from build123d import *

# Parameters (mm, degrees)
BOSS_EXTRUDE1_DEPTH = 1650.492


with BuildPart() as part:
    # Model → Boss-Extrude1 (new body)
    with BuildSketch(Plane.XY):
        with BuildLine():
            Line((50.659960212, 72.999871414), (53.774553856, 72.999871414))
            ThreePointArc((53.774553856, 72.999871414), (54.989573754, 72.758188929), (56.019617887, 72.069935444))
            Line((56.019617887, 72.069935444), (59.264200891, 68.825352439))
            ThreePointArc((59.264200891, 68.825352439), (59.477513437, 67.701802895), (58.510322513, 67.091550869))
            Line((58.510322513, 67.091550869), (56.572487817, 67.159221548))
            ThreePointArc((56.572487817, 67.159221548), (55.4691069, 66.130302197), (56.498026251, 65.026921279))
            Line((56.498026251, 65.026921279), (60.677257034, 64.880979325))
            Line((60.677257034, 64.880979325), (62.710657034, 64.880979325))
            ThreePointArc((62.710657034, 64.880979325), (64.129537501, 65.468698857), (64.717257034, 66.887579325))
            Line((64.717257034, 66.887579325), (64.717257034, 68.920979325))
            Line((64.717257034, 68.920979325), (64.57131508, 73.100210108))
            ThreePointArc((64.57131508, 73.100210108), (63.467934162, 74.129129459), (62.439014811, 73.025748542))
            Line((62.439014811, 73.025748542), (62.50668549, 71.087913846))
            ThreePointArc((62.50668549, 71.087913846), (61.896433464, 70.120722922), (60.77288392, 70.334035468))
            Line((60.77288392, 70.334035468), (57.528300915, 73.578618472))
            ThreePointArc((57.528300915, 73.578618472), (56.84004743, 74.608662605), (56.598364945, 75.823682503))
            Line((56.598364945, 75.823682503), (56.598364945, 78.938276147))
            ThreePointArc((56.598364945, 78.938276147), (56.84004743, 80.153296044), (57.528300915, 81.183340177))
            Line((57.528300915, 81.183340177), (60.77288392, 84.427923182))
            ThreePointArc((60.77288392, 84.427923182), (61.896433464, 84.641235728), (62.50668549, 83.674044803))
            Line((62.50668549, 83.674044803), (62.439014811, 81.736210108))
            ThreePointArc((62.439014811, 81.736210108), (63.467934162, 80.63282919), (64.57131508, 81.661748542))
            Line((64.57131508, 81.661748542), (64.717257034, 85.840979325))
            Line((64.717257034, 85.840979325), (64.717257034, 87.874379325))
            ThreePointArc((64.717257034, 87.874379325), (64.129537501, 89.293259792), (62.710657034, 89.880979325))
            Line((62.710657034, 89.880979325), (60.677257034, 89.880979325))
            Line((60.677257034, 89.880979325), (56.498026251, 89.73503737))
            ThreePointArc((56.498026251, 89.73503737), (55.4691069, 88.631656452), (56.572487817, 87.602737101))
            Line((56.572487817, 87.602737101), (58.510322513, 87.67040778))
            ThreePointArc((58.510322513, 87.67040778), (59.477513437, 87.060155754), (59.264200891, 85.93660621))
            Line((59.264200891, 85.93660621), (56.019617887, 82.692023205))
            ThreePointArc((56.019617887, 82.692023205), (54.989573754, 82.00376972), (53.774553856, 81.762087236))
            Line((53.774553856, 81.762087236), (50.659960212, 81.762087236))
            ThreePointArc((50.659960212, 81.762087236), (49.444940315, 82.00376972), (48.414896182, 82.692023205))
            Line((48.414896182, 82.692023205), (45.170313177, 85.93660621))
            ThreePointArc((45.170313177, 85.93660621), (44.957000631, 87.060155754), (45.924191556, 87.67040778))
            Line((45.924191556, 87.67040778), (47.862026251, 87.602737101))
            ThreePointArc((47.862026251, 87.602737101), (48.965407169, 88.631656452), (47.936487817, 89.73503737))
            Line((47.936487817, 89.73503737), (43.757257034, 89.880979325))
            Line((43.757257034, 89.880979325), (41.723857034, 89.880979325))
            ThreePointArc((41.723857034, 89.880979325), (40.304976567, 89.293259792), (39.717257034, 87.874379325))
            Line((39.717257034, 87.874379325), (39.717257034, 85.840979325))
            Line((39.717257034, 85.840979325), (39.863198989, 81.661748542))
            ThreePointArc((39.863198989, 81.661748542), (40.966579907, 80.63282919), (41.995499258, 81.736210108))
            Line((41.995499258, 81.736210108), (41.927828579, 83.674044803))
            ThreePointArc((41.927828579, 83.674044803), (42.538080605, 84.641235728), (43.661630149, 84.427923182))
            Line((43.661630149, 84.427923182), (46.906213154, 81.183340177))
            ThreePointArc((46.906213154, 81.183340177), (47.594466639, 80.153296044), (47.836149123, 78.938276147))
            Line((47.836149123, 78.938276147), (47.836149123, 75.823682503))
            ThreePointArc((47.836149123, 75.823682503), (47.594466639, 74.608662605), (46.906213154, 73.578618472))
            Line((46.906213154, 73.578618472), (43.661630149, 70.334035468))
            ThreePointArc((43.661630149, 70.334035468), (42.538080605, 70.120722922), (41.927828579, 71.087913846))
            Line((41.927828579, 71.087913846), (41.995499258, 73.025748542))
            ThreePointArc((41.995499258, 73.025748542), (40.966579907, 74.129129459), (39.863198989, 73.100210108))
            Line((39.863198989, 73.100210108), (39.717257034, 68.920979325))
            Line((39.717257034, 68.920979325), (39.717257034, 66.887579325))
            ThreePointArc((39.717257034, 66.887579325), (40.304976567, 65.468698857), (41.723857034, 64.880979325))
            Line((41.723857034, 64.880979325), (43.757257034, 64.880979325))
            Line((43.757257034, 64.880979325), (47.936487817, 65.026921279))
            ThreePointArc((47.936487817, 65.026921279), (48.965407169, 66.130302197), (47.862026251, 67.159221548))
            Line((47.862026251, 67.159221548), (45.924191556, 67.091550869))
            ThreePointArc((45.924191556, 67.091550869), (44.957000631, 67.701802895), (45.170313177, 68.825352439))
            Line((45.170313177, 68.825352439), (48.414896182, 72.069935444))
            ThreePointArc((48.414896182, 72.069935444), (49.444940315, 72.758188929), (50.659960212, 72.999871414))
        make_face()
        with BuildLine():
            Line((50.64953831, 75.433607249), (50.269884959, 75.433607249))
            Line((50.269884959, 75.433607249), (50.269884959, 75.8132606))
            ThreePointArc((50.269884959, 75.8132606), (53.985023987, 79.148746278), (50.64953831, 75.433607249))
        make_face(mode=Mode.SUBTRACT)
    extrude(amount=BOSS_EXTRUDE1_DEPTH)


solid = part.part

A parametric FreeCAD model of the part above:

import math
import FreeCAD as App
import Part
import Sketcher
from FreeCAD import Vector
Q = App.Units.Quantity

doc = App.newDocument("Part")
body = doc.addObject("PartDesign::Body", "Body")

# Sketch on XY plane
sketch1 = doc.addObject("Sketcher::SketchObject", "Sketch")
body.addObject(sketch1)
sketch1.AttachmentSupport = (doc.XY_Plane, [""])
sketch1.MapMode = "FlatFace"
sketch1.addGeometry([
    Part.LineSegment(Vector(50.66, 73, 0), Vector(53.77, 73, 0)),  # 0
    Part.ArcOfCircle(Part.Circle(Vector(53.77, 69.82, 0), Vector(0, 0, 1), 3.18), math.radians(45), math.radians(90)),  # 1
    Part.LineSegment(Vector(56.02, 72.07, 0), Vector(59.26, 68.83, 0)),  # 2
    Part.ArcOfCircle(Part.Circle(Vector(58.55, 68.11, 0), Vector(0, 0, 1), 1.02), math.radians(-92), math.radians(45)),  # 3
    Part.LineSegment(Vector(58.51, 67.09, 0), Vector(56.57, 67.16, 0)),  # 4
    Part.ArcOfCircle(Part.Circle(Vector(56.54, 66.09, 0), Vector(0, 0, 1), 1.07), math.radians(88), math.radians(268)),  # 5
    Part.LineSegment(Vector(56.5, 65.03, 0), Vector(60.68, 64.88, 0)),  # 6
    Part.LineSegment(Vector(60.68, 64.88, 0), Vector(62.71, 64.88, 0)),  # 7
    Part.ArcOfCircle(Part.Circle(Vector(62.71, 66.89, 0), Vector(0, 0, 1), 2.01), math.radians(-90), math.radians(0)),  # 8
    Part.LineSegment(Vector(64.72, 66.89, 0), Vector(64.72, 68.92, 0)),  # 9
    Part.LineSegment(Vector(64.72, 68.92, 0), Vector(64.57, 73.1, 0)),  # 10
    Part.ArcOfCircle(Part.Circle(Vector(63.51, 73.06, 0), Vector(0, 0, 1), 1.07), math.radians(2), math.radians(182)),  # 11
    Part.LineSegment(Vector(62.44, 73.03, 0), Vector(62.51, 71.09, 0)),  # 12
    Part.ArcOfCircle(Part.Circle(Vector(61.49, 71.05, 0), Vector(0, 0, 1), 1.02), math.radians(-135), math.radians(2)),  # 13
    Part.LineSegment(Vector(60.77, 70.33, 0), Vector(57.53, 73.58, 0)),  # 14
    Part.ArcOfCircle(Part.Circle(Vector(59.77, 75.82, 0), Vector(0, 0, 1), 3.18), math.radians(-180), math.radians(-135)),  # 15
    Part.LineSegment(Vector(56.6, 75.82, 0), Vector(56.6, 78.94, 0)),  # 16
    Part.ArcOfCircle(Part.Circle(Vector(59.77, 78.94, 0), Vector(0, 0, 1), 3.18), math.radians(135), math.radians(180)),  # 17
    Part.LineSegment(Vector(57.53, 81.18, 0), Vector(60.77, 84.43, 0)),  # 18
    Part.ArcOfCircle(Part.Circle(Vector(61.49, 83.71, 0), Vector(0, 0, 1), 1.02), math.radians(-2), math.radians(135)),  # 19
    Part.LineSegment(Vector(62.51, 83.67, 0), Vector(62.44, 81.74, 0)),  # 20
    Part.ArcOfCircle(Part.Circle(Vector(63.51, 81.7, 0), Vector(0, 0, 1), 1.07), math.radians(178), math.radians(358)),  # 21
    Part.LineSegment(Vector(64.57, 81.66, 0), Vector(64.72, 85.84, 0)),  # 22
    Part.LineSegment(Vector(64.72, 85.84, 0), Vector(64.72, 87.87, 0)),  # 23
    Part.ArcOfCircle(Part.Circle(Vector(62.71, 87.87, 0), Vector(0, 0, 1), 2.01), math.radians(0), math.radians(90)),  # 24
    Part.LineSegment(Vector(62.71, 89.88, 0), Vector(60.68, 89.88, 0)),  # 25
    Part.LineSegment(Vector(60.68, 89.88, 0), Vector(56.5, 89.74, 0)),  # 26
    Part.ArcOfCircle(Part.Circle(Vector(56.54, 88.67, 0), Vector(0, 0, 1), 1.07), math.radians(92), math.radians(272)),  # 27
    Part.LineSegment(Vector(56.57, 87.6, 0), Vector(58.51, 87.67, 0)),  # 28
    Part.ArcOfCircle(Part.Circle(Vector(58.55, 86.66, 0), Vector(0, 0, 1), 1.02), math.radians(-45), math.radians(92)),  # 29
    Part.LineSegment(Vector(59.26, 85.94, 0), Vector(56.02, 82.69, 0)),  # 30
    Part.ArcOfCircle(Part.Circle(Vector(53.77, 84.94, 0), Vector(0, 0, 1), 3.18), math.radians(-90), math.radians(-45)),  # 31
    Part.LineSegment(Vector(53.77, 81.76, 0), Vector(50.66, 81.76, 0)),  # 32
    Part.ArcOfCircle(Part.Circle(Vector(50.66, 84.94, 0), Vector(0, 0, 1), 3.18), math.radians(-135), math.radians(-90)),  # 33
    Part.LineSegment(Vector(48.41, 82.69, 0), Vector(45.17, 85.94, 0)),  # 34
    Part.ArcOfCircle(Part.Circle(Vector(45.89, 86.66, 0), Vector(0, 0, 1), 1.02), math.radians(88), math.radians(225)),  # 35
    Part.LineSegment(Vector(45.92, 87.67, 0), Vector(47.86, 87.6, 0)),  # 36
    Part.ArcOfCircle(Part.Circle(Vector(47.9, 88.67, 0), Vector(0, 0, 1), 1.07), math.radians(-92), math.radians(88)),  # 37
    Part.LineSegment(Vector(47.94, 89.74, 0), Vector(43.76, 89.88, 0)),  # 38
    Part.LineSegment(Vector(43.76, 89.88, 0), Vector(41.72, 89.88, 0)),  # 39
    Part.ArcOfCircle(Part.Circle(Vector(41.72, 87.87, 0), Vector(0, 0, 1), 2.01), math.radians(90), math.radians(180)),  # 40
    Part.LineSegment(Vector(39.72, 87.87, 0), Vector(39.72, 85.84, 0)),  # 41
    Part.LineSegment(Vector(39.72, 85.84, 0), Vector(39.86, 81.66, 0)),  # 42
    Part.ArcOfCircle(Part.Circle(Vector(40.93, 81.7, 0), Vector(0, 0, 1), 1.07), math.radians(-178), math.radians(2)),  # 43
    Part.LineSegment(Vector(42, 81.74, 0), Vector(41.93, 83.67, 0)),  # 44
    Part.ArcOfCircle(Part.Circle(Vector(42.94, 83.71, 0), Vector(0, 0, 1), 1.02), math.radians(45), math.radians(182)),  # 45
    Part.LineSegment(Vector(43.66, 84.43, 0), Vector(46.91, 81.18, 0)),  # 46
    Part.ArcOfCircle(Part.Circle(Vector(44.66, 78.94, 0), Vector(0, 0, 1), 3.18), math.radians(0), math.radians(45)),  # 47
    Part.LineSegment(Vector(47.84, 78.94, 0), Vector(47.84, 75.82, 0)),  # 48
    Part.ArcOfCircle(Part.Circle(Vector(44.66, 75.82, 0), Vector(0, 0, 1), 3.18), math.radians(-45), math.radians(0)),  # 49
    Part.LineSegment(Vector(46.91, 73.58, 0), Vector(43.66, 70.33, 0)),  # 50
    Part.ArcOfCircle(Part.Circle(Vector(42.94, 71.05, 0), Vector(0, 0, 1), 1.02), math.radians(178), math.radians(315)),  # 51
    Part.LineSegment(Vector(41.93, 71.09, 0), Vector(42, 73.03, 0)),  # 52
    Part.ArcOfCircle(Part.Circle(Vector(40.93, 73.06, 0), Vector(0, 0, 1), 1.07), math.radians(-2), math.radians(178)),  # 53
    Part.LineSegment(Vector(39.86, 73.1, 0), Vector(39.72, 68.92, 0)),  # 54
    Part.LineSegment(Vector(39.72, 68.92, 0), Vector(39.72, 66.89, 0)),  # 55
    Part.ArcOfCircle(Part.Circle(Vector(41.72, 66.89, 0), Vector(0, 0, 1), 2.01), math.radians(180), math.radians(270)),  # 56
    Part.LineSegment(Vector(41.72, 64.88, 0), Vector(43.76, 64.88, 0)),  # 57
    Part.LineSegment(Vector(43.76, 64.88, 0), Vector(47.94, 65.03, 0)),  # 58
    Part.ArcOfCircle(Part.Circle(Vector(47.9, 66.09, 0), Vector(0, 0, 1), 1.07), math.radians(-88), math.radians(92)),  # 59
    Part.LineSegment(Vector(47.86, 67.16, 0), Vector(45.92, 67.09, 0)),  # 60
    Part.ArcOfCircle(Part.Circle(Vector(45.89, 68.11, 0), Vector(0, 0, 1), 1.02), math.radians(135), math.radians(272)),  # 61
    Part.LineSegment(Vector(45.17, 68.83, 0), Vector(48.41, 72.07, 0)),  # 62
    Part.ArcOfCircle(Part.Circle(Vector(50.66, 69.82, 0), Vector(0, 0, 1), 3.18), math.radians(90), math.radians(135)),  # 63
    Part.ArcOfCircle(Part.Circle(Vector(52.22, 77.38, 0), Vector(0, 0, 1), 2.5), math.radians(-129), math.radians(219)),  # 64
    Part.LineSegment(Vector(50.65, 75.43, 0), Vector(50.27, 75.43, 0)),  # 65
    Part.LineSegment(Vector(50.27, 75.43, 0), Vector(50.27, 75.81, 0)),  # 66
], False)
sketch1.addConstraint([
    Sketcher.Constraint("Tangent", 0, 2, 1, 2),
    Sketcher.Constraint("Tangent", 1, 1, 2, 1),
    Sketcher.Constraint("Tangent", 2, 2, 3, 2),
    Sketcher.Constraint("Tangent", 3, 1, 4, 1),
    Sketcher.Constraint("Tangent", 4, 2, 5, 1),
    Sketcher.Constraint("Tangent", 5, 2, 6, 1),
    Sketcher.Constraint("Coincident", 6, 2, 7, 1),
    Sketcher.Constraint("Tangent", 7, 2, 8, 1),
    Sketcher.Constraint("Tangent", 8, 2, 9, 1),
    Sketcher.Constraint("Coincident", 9, 2, 10, 1),
    Sketcher.Constraint("Tangent", 10, 2, 11, 1),
    Sketcher.Constraint("Tangent", 11, 2, 12, 1),
    Sketcher.Constraint("Tangent", 12, 2, 13, 2),
    Sketcher.Constraint("Tangent", 13, 1, 14, 1),
    Sketcher.Constraint("Tangent", 14, 2, 15, 2),
    Sketcher.Constraint("Tangent", 15, 1, 16, 1),
    Sketcher.Constraint("Tangent", 16, 2, 17, 2),
    Sketcher.Constraint("Tangent", 17, 1, 18, 1),
    Sketcher.Constraint("Tangent", 18, 2, 19, 2),
    Sketcher.Constraint("Tangent", 19, 1, 20, 1),
    Sketcher.Constraint("Tangent", 20, 2, 21, 1),
    Sketcher.Constraint("Tangent", 21, 2, 22, 1),
    Sketcher.Constraint("Coincident", 22, 2, 23, 1),
    Sketcher.Constraint("Tangent", 23, 2, 24, 1),
    Sketcher.Constraint("Tangent", 24, 2, 25, 1),
    Sketcher.Constraint("Coincident", 25, 2, 26, 1),
    Sketcher.Constraint("Tangent", 26, 2, 27, 1),
    Sketcher.Constraint("Tangent", 27, 2, 28, 1),
    Sketcher.Constraint("Tangent", 28, 2, 29, 2),
    Sketcher.Constraint("Tangent", 29, 1, 30, 1),
    Sketcher.Constraint("Tangent", 30, 2, 31, 2),
    Sketcher.Constraint("Tangent", 31, 1, 32, 1),
    Sketcher.Constraint("Tangent", 32, 2, 33, 2),
    Sketcher.Constraint("Tangent", 33, 1, 34, 1),
    Sketcher.Constraint("Tangent", 34, 2, 35, 2),
    Sketcher.Constraint("Tangent", 35, 1, 36, 1),
    Sketcher.Constraint("Tangent", 36, 2, 37, 1),
    Sketcher.Constraint("Tangent", 37, 2, 38, 1),
    Sketcher.Constraint("Coincident", 38, 2, 39, 1),
    Sketcher.Constraint("Tangent", 39, 2, 40, 1),
    Sketcher.Constraint("Tangent", 40, 2, 41, 1),
    Sketcher.Constraint("Coincident", 41, 2, 42, 1),
    Sketcher.Constraint("Tangent", 42, 2, 43, 1),
    Sketcher.Constraint("Tangent", 43, 2, 44, 1),
    Sketcher.Constraint("Tangent", 44, 2, 45, 2),
    Sketcher.Constraint("Tangent", 45, 1, 46, 1),
    Sketcher.Constraint("Tangent", 46, 2, 47, 2),
    Sketcher.Constraint("Tangent", 47, 1, 48, 1),
    Sketcher.Constraint("Tangent", 48, 2, 49, 2),
    Sketcher.Constraint("Tangent", 49, 1, 50, 1),
    Sketcher.Constraint("Tangent", 50, 2, 51, 2),
    Sketcher.Constraint("Tangent", 51, 1, 52, 1),
    Sketcher.Constraint("Tangent", 52, 2, 53, 1),
    Sketcher.Constraint("Tangent", 53, 2, 54, 1),
    Sketcher.Constraint("Coincident", 54, 2, 55, 1),
    Sketcher.Constraint("Tangent", 55, 2, 56, 1),
    Sketcher.Constraint("Tangent", 56, 2, 57, 1),
    Sketcher.Constraint("Coincident", 57, 2, 58, 1),
    Sketcher.Constraint("Tangent", 58, 2, 59, 1),
    Sketcher.Constraint("Tangent", 59, 2, 60, 1),
    Sketcher.Constraint("Tangent", 60, 2, 61, 2),
    Sketcher.Constraint("Tangent", 61, 1, 62, 1),
    Sketcher.Constraint("Tangent", 62, 2, 63, 2),
    Sketcher.Constraint("Tangent", 63, 1, 0, 1),
    Sketcher.Constraint("Coincident", 64, 1, 65, 1),
    Sketcher.Constraint("Coincident", 65, 2, 66, 1),
    Sketcher.Constraint("Coincident", 66, 2, 64, 2),
    Sketcher.Constraint("Horizontal", 0),
    Sketcher.Constraint("Horizontal", 7),
    Sketcher.Constraint("Vertical", 9),
    Sketcher.Constraint("Vertical", 16),
    Sketcher.Constraint("Vertical", 23),
    Sketcher.Constraint("Horizontal", 25),
    Sketcher.Constraint("Horizontal", 32),
    Sketcher.Constraint("Horizontal", 39),
    Sketcher.Constraint("Vertical", 41),
    Sketcher.Constraint("Vertical", 48),
    Sketcher.Constraint("Vertical", 55),
    Sketcher.Constraint("Horizontal", 57),
    Sketcher.Constraint("Horizontal", 65),
    Sketcher.Constraint("Vertical", 66),
    Sketcher.Constraint("Equal", 5, 11),
    Sketcher.Constraint("Equal", 3, 13),
    Sketcher.Constraint("Equal", 1, 15),
    Sketcher.Constraint("Equal", 15, 17),
    Sketcher.Constraint("Equal", 13, 19),
    Sketcher.Constraint("Equal", 11, 21),
    Sketcher.Constraint("Equal", 8, 24),
    Sketcher.Constraint("Equal", 21, 27),
    Sketcher.Constraint("Equal", 19, 29),
    Sketcher.Constraint("Equal", 17, 31),
    Sketcher.Constraint("Equal", 31, 33),
    Sketcher.Constraint("Equal", 29, 35),
    Sketcher.Constraint("Equal", 27, 37),
    Sketcher.Constraint("Equal", 24, 40),
    Sketcher.Constraint("Equal", 37, 43),
    Sketcher.Constraint("Equal", 35, 45),
    Sketcher.Constraint("Equal", 33, 47),
    Sketcher.Constraint("Equal", 47, 49),
    Sketcher.Constraint("Equal", 45, 51),
    Sketcher.Constraint("Equal", 43, 53),
    Sketcher.Constraint("Equal", 40, 56),
    Sketcher.Constraint("Equal", 53, 59),
    Sketcher.Constraint("Equal", 51, 61),
    Sketcher.Constraint("Equal", 49, 63),
    Sketcher.Constraint("Parallel", 4, 6),
    Sketcher.Constraint("Parallel", 10, 12),
    Sketcher.Constraint("Parallel", 2, 14),
    Sketcher.Constraint("Perpendicular", 14, 18),
    Sketcher.Constraint("Perpendicular", 6, 20),
    Sketcher.Constraint("Parallel", 20, 22),
    Sketcher.Constraint("Perpendicular", 12, 26),
    Sketcher.Constraint("Parallel", 26, 28),
    Sketcher.Constraint("Parallel", 18, 30),
    Sketcher.Constraint("Perpendicular", 30, 34),
    Sketcher.Constraint("Perpendicular", 22, 36),
    Sketcher.Constraint("Parallel", 36, 38),
    Sketcher.Constraint("Perpendicular", 28, 42),
    Sketcher.Constraint("Parallel", 42, 44),
    Sketcher.Constraint("Parallel", 34, 46),
    Sketcher.Constraint("Perpendicular", 46, 50),
    Sketcher.Constraint("Perpendicular", 38, 52),
    Sketcher.Constraint("Parallel", 52, 54),
    Sketcher.Constraint("Perpendicular", 44, 58),
    Sketcher.Constraint("Parallel", 58, 60),
    Sketcher.Constraint("Parallel", 50, 62),
    Sketcher.Constraint("Horizontal", 29, 3, 35, 3),
    Sketcher.Constraint("Horizontal", 27, 3, 37, 3),
    Sketcher.Constraint("Horizontal", 24, 3, 40, 3),
    Sketcher.Constraint("Horizontal", 21, 3, 43, 3),
    Sketcher.Constraint("Horizontal", 19, 3, 45, 3),
    Sketcher.Constraint("Horizontal", 17, 3, 47, 3),
    Sketcher.Constraint("Horizontal", 15, 3, 49, 3),
    Sketcher.Constraint("Horizontal", 13, 3, 51, 3),
    Sketcher.Constraint("Horizontal", 11, 3, 53, 3),
    Sketcher.Constraint("Horizontal", 8, 3, 56, 3),
    Sketcher.Constraint("Horizontal", 5, 3, 59, 3),
    Sketcher.Constraint("Horizontal", 3, 3, 61, 3),
    Sketcher.Constraint("Horizontal", 30, 2, 33, 1),
    Sketcher.Constraint("Horizontal", 22, 2, 41, 2),
    Sketcher.Constraint("Horizontal", 21, 2, 42, 2),
    Sketcher.Constraint("Horizontal", 9, 2, 54, 2),
    Sketcher.Constraint("Vertical", 13, 3, 19, 3),
    Sketcher.Constraint("Vertical", 11, 3, 21, 3),
    Sketcher.Constraint("Vertical", 8, 3, 24, 3),
    Sketcher.Constraint("Vertical", 5, 3, 27, 3),
    Sketcher.Constraint("Vertical", 3, 3, 29, 3),
    Sketcher.Constraint("Vertical", 1, 3, 31, 3),
    Sketcher.Constraint("Vertical", 37, 3, 59, 3),
    Sketcher.Constraint("Vertical", 6, 2, 25, 2),
    Sketcher.Constraint("Equal", 25, 39),
    Sketcher.Constraint("Equal", 57, 9),
    Sketcher.Constraint("Equal", 32, 16),
    Sketcher.Constraint("Equal", 9, 23),
    Sketcher.Constraint("Equal", 65, 66),
    Sketcher.Constraint("Equal", 6, 10),
    Sketcher.Constraint("Equal", 4, 12),
    Sketcher.Constraint("Equal", 2, 14),
    Sketcher.Constraint("Radius", 3, Q("0.04 in")),
    Sketcher.Constraint("Angle", 4, Q("178 deg")),
    Sketcher.Constraint("Radius", 1, Q("0.125 in")),
    Sketcher.Constraint("Radius", 5, Q("0.042 in")),
    Sketcher.Constraint("Radius", 8, Q("0.079 in")),
    Sketcher.Constraint("Radius", 64, Q("2.5 mm")),
    Sketcher.Constraint("DistanceX", 7, 1, 7, 2, Q("2.0334 mm")),
    Sketcher.Constraint("DistanceX", -1, 1, 2, 2, Q("59.264201 mm")),
    Sketcher.Constraint("DistanceX", -1, 1, 14, 2, Q("57.528301 mm")),
    Sketcher.Constraint("DistanceX", -1, 1, 42, 2, Q("39.863199 mm")),
    Sketcher.Constraint("Distance", 6, Q("4.181778 mm")),
    Sketcher.Constraint("DistanceX", 0, 1, 0, 2, Q("3.114594 mm")),
    Sketcher.Constraint("DistanceX", 65, 2, 65, 1, Q("0.379653 mm")),
    Sketcher.Constraint("DistanceY", -1, 1, 1, 3, Q("69.824871 mm")),
    Sketcher.Constraint("DistanceY", -1, 1, 64, 3, Q("77.380979 mm")),
    Sketcher.Constraint("DistanceX", -1, 1, 64, 1, Q("50.649538 mm")),
])
pad1 = doc.addObject("PartDesign::Pad", "Pad")
body.addObject(pad1)
pad1.Profile = sketch1
pad1.Length = Q("64.98 in")

doc.recompute()
